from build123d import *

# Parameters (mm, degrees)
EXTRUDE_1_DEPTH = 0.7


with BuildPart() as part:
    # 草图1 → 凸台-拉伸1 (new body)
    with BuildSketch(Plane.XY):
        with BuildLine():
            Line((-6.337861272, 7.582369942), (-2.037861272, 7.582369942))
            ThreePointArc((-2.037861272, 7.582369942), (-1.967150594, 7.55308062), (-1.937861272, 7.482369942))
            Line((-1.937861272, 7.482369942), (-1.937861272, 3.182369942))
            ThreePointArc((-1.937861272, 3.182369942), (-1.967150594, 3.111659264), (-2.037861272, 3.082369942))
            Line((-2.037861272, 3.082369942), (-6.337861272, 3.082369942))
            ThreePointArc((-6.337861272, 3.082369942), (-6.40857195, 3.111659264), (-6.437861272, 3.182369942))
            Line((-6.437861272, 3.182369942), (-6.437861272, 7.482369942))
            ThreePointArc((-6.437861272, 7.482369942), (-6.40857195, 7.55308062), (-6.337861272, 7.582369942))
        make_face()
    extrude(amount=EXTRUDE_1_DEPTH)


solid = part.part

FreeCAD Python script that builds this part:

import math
import FreeCAD as App
import Part
import Sketcher
Q = App.Units.Quantity

doc = App.newDocument("Part")
body = doc.addObject("PartDesign::Body", "Body")

# Sketch on XY plane
sketch1 = body.newObject("Sketcher::SketchObject", "Sketch")
sketch1.AttachmentSupport = (doc.getObject("XY_Plane"), [""])
sketch1.MapMode = "FlatFace"
sketch1.addGeometry([
    Part.LineSegment(App.Vector(-2.037861, 7.58237, 0), App.Vector(-6.337861, 7.58237, 0)),  # 0
    Part.ArcOfCircle(Part.Circle(App.Vector(-6.337861, 7.48237, 0), App.Vector(0, 0, 1), 0.1), math.radians(90), math.radians(180)),  # 1
    Part.LineSegment(App.Vector(-6.437861, 7.48237, 0), App.Vector(-6.437861, 3.18237, 0)),  # 2
    Part.ArcOfCircle(Part.Circle(App.Vector(-6.337861, 3.18237, 0), App.Vector(0, 0, 1), 0.1), math.radians(180), math.radians(270)),  # 3
    Part.LineSegment(App.Vector(-6.337861, 3.08237, 0), App.Vector(-2.037861, 3.08237, 0)),  # 4
    Part.ArcOfCircle(Part.Circle(App.Vector(-2.037861, 3.18237, 0), App.Vector(0, 0, 1), 0.1), math.radians(-90), math.radians(0)),  # 5
    Part.LineSegment(App.Vector(-1.937861, 3.18237, 0), App.Vector(-1.937861, 7.48237, 0)),  # 6
    Part.ArcOfCircle(Part.Circle(App.Vector(-2.037861, 7.48237, 0), App.Vector(0, 0, 1), 0.1), math.radians(0), math.radians(90)),  # 7
], False)
sketch1.addConstraint([
    Sketcher.Constraint("Tangent", 0, 2, 1, 1),
    Sketcher.Constraint("Tangent", 1, 2, 2, 1),
    Sketcher.Constraint("Tangent", 2, 2, 3, 1),
    Sketcher.Constraint("Tangent", 3, 2, 4, 1),
    Sketcher.Constraint("Tangent", 4, 2, 5, 1),
    Sketcher.Constraint("Tangent", 5, 2, 6, 1),
    Sketcher.Constraint("Tangent", 6, 2, 7, 1),
    Sketcher.Constraint("Tangent", 7, 2, 0, 1),
    Sketcher.Constraint("Horizontal", 0),
    Sketcher.Constraint("Vertical", 2),
    Sketcher.Constraint("Horizontal", 4),
    Sketcher.Constraint("Vertical", 6),
    Sketcher.Constraint("Equal", 1, 3),
    Sketcher.Constraint("Equal", 3, 5),
    Sketcher.Constraint("Equal", 5, 7),
    Sketcher.Constraint("Equal", 4, 2),
    Sketcher.Constraint("Radius", 1, Q("0.1 mm")),
    Sketcher.Constraint("DistanceX", 0, 2, 0, 1, Q("4.3 mm")),
    Sketcher.Constraint("DistanceX", 1, 3, -1, 1, Q("6.337861 mm")),
    Sketcher.Constraint("DistanceY", -1, 1, 1, 3, Q("7.48237 mm")),
])
pad1 = body.newObject("PartDesign::Pad", "Pad")
pad1.Profile = sketch1
pad1.Length = 0.7

doc.recompute()
